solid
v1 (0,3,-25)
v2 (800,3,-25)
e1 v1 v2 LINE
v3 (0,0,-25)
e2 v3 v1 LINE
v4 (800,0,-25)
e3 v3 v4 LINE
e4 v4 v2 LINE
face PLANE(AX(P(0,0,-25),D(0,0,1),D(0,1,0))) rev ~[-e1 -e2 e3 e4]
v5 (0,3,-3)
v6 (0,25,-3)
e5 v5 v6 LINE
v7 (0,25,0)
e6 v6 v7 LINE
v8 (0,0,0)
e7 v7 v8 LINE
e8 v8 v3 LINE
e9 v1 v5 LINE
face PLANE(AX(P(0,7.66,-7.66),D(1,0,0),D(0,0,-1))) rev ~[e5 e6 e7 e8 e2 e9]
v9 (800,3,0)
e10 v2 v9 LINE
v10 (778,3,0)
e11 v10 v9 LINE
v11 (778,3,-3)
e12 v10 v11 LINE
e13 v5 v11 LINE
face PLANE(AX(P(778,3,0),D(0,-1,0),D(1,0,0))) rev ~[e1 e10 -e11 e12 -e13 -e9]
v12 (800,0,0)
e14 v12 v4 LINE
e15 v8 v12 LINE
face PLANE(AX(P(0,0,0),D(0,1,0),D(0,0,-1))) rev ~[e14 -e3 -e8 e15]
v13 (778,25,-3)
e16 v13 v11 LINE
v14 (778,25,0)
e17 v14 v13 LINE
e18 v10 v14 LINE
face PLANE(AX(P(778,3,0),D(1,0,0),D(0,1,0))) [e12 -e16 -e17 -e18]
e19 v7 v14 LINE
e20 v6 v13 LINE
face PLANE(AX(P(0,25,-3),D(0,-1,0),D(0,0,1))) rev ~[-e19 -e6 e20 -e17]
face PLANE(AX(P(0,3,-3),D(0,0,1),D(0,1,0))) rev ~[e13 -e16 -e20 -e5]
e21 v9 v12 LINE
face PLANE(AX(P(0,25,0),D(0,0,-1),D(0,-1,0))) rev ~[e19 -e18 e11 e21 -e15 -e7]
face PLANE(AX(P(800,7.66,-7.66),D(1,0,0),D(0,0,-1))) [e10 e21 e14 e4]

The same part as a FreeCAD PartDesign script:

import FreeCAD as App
import Part
import Sketcher

doc = App.newDocument("Part")
body = doc.addObject("PartDesign::Body", "Body")

sketch1 = body.newObject("Sketcher::SketchObject", "Sketch")
sketch1.AttachmentSupport = (doc.getObject("YZ_Plane"), [""])
sketch1.MapMode = "FlatFace"
sketch1.addGeometry([
    Part.LineSegment(App.Vector(25, 0, 0), App.Vector(0, 0, 0)),
    Part.LineSegment(App.Vector(0, 0, 0), App.Vector(0, -25, 0)),
    Part.LineSegment(App.Vector(0, -25, 0), App.Vector(3, -25, 0)),
    Part.LineSegment(App.Vector(3, -25, 0), App.Vector(3, -3, 0)),
    Part.LineSegment(App.Vector(3, -3, 0), App.Vector(25, -3, 0)),
    Part.LineSegment(App.Vector(25, -3, 0), App.Vector(25, 0, 0)),
], False)
sketch1.addConstraint([
    Sketcher.Constraint("Coincident", 0, 2, 1, 1),
    Sketcher.Constraint("Coincident", 1, 2, 2, 1),
    Sketcher.Constraint("Coincident", 2, 2, 3, 1),
    Sketcher.Constraint("Coincident", 3, 2, 4, 1),
    Sketcher.Constraint("Coincident", 4, 2, 5, 1),
    Sketcher.Constraint("Coincident", 5, 2, 0, 1),
    Sketcher.Constraint("Horizontal", 0),
    Sketcher.Constraint("Vertical", 1),
    Sketcher.Constraint("Horizontal", 2),
    Sketcher.Constraint("Vertical", 3),
    Sketcher.Constraint("Horizontal", 4),
    Sketcher.Constraint("Vertical", 5),
    Sketcher.Constraint("Coincident", 0, 2, -1, 1),
    Sketcher.Constraint("Equal", 0, 1),
    Sketcher.Constraint("Equal", 4, 3),
    Sketcher.Constraint("DistanceX", 0, 2, 0, 1, 25.0),
    Sketcher.Constraint("DistanceX", 2, 1, 2, 2, 3.0),
])
pad1 = body.newObject("PartDesign::Pad", "Pad")
pad1.Profile = sketch1
pad1.Length = 800

sketch2 = body.newObject("Sketcher::SketchObject", "Sketch001")
sketch2.AttachmentSupport = (doc.getObject("XY_Plane"), [""])
sketch2.MapMode = "FlatFace"
sketch2.addGeometry([
    Part.LineSegment(App.Vector(778, 25, 0), App.Vector(778, 3, 0)),
    Part.LineSegment(App.Vector(778, 3, 0), App.Vector(800, 3, 0)),
    Part.LineSegment(App.Vector(800, 3, 0), App.Vector(800, 25, 0)),
    Part.LineSegment(App.Vector(800, 25, 0), App.Vector(778, 25, 0)),
], False)
sketch2.addConstraint([
    Sketcher.Constraint("Coincident", 0, 2, 1, 1),
    Sketcher.Constraint("Coincident", 1, 2, 2, 1),
    Sketcher.Constraint("Coincident", 2, 2, 3, 1),
    Sketcher.Constraint("Coincident", 3, 2, 0, 1),
    Sketcher.Constraint("Vertical", 0),
    Sketcher.Constraint("Horizontal", 1),
    Sketcher.Constraint("Vertical", 2),
    Sketcher.Constraint("Horizontal", 3),
    Sketcher.Constraint("Equal", 3, 0),
    Sketcher.Constraint("DistanceX", 1, 1, 1, 2, 22.0),
    Sketcher.Constraint("DistanceX", -1, 1, 0, 2, 778.0),
    Sketcher.Constraint("DistanceY", -1, 1, 0, 2, 3.0),
])
pocket1 = body.newObject("PartDesign::Pocket", "Pocket")
pocket1.Profile = sketch2
pocket1.Type = "UpToFirst"

doc.recompute()
